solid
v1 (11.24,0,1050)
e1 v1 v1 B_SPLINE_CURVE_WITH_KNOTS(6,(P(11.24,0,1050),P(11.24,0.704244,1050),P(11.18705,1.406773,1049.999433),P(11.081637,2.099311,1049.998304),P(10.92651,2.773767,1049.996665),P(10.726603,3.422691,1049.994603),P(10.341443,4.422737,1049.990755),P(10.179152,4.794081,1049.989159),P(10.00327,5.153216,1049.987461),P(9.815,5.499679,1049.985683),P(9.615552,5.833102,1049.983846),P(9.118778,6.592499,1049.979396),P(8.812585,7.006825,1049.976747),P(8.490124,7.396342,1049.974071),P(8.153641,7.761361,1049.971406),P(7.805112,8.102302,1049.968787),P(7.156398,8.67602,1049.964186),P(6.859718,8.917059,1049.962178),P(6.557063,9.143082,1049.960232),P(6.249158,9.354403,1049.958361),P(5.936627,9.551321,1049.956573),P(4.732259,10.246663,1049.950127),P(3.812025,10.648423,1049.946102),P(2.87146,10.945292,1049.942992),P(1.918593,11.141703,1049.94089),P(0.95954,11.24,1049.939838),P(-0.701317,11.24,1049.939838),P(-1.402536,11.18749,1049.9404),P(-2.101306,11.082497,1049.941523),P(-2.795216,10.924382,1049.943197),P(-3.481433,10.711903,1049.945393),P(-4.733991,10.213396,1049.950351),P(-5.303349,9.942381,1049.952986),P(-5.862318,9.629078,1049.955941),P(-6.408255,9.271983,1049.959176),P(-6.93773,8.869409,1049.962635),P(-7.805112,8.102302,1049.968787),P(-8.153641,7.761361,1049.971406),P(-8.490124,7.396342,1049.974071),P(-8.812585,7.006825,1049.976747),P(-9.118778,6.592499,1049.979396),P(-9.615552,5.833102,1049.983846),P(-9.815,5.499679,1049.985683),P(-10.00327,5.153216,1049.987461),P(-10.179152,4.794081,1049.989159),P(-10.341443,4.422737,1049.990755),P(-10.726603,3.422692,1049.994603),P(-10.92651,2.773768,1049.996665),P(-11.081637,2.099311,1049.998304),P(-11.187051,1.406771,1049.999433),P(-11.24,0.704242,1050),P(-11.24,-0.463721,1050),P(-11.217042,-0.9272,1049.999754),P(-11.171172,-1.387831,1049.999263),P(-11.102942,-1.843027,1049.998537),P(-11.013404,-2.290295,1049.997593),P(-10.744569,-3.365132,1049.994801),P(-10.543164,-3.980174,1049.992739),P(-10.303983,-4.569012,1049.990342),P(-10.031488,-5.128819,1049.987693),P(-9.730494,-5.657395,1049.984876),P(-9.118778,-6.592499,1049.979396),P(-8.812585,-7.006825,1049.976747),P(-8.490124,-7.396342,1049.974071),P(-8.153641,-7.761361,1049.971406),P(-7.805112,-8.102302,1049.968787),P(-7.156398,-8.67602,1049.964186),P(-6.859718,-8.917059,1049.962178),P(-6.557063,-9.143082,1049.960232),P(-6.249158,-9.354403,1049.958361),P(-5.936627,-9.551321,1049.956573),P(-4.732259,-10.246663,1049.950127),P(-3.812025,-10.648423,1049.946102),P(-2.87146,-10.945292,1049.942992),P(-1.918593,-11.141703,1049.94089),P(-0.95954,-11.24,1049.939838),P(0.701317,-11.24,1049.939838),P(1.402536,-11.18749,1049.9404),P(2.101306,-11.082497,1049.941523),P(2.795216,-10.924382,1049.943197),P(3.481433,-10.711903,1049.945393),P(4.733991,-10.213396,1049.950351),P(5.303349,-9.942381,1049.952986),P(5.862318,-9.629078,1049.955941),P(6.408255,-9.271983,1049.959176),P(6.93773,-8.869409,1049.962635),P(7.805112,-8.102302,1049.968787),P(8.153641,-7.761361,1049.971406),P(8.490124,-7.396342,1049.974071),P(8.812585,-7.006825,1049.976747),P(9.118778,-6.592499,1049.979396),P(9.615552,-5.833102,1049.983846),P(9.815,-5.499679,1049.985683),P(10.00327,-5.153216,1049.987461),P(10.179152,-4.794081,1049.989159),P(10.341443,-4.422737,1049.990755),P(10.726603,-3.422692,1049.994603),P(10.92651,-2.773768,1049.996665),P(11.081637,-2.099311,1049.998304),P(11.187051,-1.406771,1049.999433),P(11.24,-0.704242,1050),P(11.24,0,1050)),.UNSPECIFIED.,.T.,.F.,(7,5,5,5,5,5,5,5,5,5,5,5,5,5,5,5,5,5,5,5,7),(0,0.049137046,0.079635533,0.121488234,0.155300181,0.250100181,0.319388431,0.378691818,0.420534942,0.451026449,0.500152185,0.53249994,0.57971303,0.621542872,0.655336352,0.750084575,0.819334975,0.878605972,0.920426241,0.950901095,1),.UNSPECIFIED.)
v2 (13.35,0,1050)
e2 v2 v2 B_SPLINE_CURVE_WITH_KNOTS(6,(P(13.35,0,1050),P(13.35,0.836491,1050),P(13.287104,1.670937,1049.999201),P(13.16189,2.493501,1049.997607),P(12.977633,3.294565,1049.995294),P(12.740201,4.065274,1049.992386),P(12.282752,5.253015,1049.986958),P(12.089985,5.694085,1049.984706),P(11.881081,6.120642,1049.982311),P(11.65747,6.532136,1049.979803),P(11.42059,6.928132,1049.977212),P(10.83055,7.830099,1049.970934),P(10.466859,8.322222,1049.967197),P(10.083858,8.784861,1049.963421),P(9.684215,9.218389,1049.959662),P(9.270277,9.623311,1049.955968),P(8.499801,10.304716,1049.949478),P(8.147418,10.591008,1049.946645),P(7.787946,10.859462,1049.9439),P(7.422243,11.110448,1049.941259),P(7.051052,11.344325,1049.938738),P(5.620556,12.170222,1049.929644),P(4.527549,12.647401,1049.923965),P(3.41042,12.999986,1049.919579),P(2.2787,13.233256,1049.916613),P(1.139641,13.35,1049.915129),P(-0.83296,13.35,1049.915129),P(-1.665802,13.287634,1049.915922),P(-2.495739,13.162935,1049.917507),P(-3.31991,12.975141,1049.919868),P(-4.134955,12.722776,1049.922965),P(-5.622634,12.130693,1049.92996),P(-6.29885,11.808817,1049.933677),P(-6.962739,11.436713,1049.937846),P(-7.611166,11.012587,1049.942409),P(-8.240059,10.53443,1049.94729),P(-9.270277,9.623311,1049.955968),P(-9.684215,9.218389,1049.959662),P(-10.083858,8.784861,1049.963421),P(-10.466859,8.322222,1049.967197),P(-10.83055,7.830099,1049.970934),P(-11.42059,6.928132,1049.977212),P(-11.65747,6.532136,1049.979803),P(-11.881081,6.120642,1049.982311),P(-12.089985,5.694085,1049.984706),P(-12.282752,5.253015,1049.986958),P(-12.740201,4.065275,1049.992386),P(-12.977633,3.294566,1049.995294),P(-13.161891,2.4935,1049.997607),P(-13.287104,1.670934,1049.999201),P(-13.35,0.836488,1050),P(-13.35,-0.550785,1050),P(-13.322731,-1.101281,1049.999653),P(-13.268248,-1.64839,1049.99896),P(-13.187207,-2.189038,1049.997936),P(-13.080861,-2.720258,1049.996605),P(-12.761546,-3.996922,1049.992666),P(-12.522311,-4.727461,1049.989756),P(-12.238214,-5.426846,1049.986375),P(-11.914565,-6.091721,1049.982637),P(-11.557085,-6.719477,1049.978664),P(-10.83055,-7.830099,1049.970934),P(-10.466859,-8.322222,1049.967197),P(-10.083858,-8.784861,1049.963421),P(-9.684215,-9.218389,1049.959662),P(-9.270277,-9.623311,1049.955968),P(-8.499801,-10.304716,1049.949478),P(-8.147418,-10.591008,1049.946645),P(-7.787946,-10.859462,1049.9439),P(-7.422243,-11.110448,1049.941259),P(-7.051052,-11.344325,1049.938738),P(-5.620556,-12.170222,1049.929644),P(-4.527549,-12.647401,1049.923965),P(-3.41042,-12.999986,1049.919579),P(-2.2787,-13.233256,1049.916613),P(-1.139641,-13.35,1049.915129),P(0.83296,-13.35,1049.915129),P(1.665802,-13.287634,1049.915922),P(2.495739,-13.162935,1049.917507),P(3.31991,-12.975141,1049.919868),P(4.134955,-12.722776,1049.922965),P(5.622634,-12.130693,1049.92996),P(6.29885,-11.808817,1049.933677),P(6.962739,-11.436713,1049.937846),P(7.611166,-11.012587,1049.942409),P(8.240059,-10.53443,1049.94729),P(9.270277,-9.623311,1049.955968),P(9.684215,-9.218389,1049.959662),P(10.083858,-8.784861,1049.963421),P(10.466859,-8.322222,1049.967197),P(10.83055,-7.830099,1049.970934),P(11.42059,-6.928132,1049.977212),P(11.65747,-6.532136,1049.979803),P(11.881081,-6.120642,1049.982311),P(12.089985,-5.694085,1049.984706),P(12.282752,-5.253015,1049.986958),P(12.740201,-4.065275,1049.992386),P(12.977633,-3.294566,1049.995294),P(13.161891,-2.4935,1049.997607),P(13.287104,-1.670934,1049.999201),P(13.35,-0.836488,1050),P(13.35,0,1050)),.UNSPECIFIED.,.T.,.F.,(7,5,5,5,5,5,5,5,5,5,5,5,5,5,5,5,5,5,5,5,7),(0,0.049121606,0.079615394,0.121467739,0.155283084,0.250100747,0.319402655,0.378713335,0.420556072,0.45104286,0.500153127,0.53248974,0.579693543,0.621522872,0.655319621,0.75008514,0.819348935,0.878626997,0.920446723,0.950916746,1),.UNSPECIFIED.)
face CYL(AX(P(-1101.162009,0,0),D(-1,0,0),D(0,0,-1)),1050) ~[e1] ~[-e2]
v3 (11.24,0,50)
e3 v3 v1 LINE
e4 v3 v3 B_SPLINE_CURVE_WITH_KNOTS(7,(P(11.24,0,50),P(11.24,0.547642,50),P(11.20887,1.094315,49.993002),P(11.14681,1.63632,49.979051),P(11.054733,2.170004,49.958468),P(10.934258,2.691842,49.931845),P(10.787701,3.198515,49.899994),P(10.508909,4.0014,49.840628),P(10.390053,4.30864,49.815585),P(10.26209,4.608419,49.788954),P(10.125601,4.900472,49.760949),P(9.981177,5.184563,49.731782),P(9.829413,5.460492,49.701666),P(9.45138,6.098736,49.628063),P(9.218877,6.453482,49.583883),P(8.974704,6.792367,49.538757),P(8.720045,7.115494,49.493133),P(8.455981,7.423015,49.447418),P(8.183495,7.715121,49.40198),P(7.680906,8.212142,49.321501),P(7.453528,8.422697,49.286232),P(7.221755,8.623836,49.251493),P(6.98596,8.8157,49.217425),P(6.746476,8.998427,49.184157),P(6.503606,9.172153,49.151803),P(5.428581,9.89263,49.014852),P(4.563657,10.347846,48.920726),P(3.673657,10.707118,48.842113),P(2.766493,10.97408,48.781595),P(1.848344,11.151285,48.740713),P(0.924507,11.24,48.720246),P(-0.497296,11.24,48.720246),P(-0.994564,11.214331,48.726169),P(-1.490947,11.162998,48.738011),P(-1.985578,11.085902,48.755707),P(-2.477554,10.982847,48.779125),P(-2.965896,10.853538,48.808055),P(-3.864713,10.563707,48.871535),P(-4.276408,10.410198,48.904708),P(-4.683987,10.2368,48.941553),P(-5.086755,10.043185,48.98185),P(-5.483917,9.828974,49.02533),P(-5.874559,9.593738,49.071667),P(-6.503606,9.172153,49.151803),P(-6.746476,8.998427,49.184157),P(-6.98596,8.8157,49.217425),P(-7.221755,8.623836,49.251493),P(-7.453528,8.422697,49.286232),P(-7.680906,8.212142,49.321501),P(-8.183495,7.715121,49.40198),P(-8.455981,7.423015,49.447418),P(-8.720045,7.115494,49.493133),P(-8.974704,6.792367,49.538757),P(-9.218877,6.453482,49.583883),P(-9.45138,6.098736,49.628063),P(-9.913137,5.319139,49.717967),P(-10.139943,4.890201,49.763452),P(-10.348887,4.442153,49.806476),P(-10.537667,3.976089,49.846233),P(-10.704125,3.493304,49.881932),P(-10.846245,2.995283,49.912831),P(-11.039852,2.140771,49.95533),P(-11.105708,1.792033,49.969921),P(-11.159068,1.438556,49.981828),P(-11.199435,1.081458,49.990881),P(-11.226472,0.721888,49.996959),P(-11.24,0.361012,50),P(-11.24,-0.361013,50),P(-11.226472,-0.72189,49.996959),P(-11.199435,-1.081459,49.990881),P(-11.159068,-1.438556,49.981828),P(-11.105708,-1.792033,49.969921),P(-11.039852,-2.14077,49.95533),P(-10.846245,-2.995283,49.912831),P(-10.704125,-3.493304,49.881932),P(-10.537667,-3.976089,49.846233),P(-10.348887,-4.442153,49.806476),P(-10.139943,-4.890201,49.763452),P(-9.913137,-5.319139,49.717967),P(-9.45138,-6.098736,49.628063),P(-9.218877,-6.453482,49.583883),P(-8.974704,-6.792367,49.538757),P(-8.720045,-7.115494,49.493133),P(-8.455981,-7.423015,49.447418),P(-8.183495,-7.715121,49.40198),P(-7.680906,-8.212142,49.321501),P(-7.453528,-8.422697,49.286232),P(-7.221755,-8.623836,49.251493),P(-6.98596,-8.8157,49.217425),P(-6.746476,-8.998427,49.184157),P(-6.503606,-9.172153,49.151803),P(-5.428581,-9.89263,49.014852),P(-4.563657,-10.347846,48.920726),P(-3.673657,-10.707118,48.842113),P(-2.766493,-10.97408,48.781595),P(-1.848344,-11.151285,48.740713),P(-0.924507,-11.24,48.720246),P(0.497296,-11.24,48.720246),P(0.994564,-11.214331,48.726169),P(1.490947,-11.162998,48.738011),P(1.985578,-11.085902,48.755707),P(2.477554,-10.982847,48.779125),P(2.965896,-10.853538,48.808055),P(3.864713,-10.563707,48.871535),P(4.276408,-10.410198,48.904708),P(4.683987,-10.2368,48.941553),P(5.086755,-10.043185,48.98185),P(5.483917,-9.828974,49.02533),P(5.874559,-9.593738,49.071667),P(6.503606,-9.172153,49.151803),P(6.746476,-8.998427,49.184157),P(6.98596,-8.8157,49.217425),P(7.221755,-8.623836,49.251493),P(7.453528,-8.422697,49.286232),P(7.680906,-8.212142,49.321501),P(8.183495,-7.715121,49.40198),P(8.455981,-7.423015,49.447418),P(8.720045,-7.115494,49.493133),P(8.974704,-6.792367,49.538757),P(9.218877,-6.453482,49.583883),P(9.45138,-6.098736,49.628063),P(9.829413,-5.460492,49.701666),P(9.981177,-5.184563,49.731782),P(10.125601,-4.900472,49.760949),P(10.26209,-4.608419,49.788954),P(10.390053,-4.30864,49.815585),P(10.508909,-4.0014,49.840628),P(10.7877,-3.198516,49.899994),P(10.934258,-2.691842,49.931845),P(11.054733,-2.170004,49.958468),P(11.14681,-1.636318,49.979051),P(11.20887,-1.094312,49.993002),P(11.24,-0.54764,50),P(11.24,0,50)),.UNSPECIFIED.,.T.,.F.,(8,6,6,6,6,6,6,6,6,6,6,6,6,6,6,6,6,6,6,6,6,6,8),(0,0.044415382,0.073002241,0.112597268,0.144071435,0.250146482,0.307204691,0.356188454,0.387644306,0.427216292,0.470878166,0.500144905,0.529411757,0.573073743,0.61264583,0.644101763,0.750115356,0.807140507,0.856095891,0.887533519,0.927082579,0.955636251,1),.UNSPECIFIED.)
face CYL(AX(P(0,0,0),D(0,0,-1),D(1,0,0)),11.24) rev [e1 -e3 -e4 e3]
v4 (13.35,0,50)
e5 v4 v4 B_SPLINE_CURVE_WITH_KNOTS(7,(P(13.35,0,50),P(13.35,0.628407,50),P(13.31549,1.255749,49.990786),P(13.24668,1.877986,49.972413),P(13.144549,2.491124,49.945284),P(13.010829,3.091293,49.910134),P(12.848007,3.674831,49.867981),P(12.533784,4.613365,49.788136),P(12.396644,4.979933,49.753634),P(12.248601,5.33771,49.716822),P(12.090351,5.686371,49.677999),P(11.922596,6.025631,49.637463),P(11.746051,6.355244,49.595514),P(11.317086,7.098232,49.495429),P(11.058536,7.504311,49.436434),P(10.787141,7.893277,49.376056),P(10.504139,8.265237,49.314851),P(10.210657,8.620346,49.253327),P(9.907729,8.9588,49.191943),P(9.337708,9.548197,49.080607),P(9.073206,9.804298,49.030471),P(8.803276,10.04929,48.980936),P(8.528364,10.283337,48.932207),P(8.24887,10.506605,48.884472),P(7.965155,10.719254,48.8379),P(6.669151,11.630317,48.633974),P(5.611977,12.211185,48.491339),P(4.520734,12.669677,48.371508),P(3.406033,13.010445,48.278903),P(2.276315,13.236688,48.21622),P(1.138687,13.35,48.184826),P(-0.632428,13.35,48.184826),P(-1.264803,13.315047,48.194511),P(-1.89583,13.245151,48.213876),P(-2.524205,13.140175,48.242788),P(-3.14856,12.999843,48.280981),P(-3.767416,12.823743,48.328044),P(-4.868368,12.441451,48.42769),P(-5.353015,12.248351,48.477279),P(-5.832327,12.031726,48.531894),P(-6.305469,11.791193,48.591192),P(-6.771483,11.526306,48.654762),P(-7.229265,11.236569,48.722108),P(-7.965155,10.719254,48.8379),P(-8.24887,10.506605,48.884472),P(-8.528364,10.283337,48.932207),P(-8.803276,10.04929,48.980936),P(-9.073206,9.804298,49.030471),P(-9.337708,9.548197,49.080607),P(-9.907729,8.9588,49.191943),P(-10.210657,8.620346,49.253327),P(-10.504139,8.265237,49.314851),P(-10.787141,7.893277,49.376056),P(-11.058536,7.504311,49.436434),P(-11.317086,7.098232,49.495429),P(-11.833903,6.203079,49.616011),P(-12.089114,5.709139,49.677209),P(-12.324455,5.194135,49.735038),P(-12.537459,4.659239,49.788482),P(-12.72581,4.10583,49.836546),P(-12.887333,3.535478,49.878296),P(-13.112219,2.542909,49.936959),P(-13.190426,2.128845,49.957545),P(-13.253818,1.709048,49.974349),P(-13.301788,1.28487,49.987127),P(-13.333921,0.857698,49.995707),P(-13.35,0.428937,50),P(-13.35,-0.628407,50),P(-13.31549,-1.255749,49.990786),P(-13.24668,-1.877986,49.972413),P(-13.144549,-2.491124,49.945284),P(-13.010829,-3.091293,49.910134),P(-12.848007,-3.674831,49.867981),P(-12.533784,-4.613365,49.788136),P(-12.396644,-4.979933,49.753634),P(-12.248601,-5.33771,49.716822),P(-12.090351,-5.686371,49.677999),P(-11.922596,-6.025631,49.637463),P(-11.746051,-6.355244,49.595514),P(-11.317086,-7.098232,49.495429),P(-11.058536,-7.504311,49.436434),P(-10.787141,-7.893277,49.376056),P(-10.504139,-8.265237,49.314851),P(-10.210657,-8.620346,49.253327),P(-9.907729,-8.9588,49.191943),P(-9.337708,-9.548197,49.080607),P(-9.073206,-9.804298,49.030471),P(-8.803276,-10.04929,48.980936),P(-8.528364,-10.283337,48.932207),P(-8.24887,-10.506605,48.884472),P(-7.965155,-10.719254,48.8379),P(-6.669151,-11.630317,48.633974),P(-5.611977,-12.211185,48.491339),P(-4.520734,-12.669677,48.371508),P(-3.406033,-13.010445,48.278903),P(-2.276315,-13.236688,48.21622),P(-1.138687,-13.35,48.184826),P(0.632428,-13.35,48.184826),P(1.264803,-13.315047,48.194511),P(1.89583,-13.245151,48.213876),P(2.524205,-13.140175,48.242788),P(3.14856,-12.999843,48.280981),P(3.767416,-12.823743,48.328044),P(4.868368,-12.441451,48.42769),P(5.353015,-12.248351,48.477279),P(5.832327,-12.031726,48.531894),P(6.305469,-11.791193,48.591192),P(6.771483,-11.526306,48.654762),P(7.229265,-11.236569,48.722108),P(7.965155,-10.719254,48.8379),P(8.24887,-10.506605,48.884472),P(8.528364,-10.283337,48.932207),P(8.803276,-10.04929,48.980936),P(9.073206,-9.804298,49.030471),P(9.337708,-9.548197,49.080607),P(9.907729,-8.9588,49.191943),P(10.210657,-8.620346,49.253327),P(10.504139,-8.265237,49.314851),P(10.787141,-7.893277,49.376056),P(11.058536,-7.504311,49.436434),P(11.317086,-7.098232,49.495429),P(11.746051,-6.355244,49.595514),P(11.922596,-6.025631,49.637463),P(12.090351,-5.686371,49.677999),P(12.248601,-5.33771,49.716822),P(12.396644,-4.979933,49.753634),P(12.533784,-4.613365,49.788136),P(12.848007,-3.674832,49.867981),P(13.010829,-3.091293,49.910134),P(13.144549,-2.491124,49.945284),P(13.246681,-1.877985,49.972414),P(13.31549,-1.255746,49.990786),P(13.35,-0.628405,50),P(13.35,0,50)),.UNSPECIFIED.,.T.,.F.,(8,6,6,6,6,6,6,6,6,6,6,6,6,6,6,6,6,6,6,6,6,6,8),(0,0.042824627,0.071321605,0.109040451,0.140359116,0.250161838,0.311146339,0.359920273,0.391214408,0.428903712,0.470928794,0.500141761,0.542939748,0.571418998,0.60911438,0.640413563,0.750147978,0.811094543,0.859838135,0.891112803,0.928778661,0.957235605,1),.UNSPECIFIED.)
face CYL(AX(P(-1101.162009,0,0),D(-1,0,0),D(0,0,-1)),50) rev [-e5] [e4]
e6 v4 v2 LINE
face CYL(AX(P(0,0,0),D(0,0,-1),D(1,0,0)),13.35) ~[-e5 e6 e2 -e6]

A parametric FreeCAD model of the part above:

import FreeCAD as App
import Part
import Sketcher
from FreeCAD import Vector

doc = App.newDocument("Part")
body = doc.addObject("PartDesign::Body", "Body")

# Sketch on XY plane
sketch1 = body.newObject("Sketcher::SketchObject", "Sketch")
sketch1.AttachmentSupport = (doc.getObject("XY_Plane"), [""])
sketch1.MapMode = "FlatFace"
sketch1.addGeometry([
    Part.Circle(Vector(0, 0, 0), Vector(0, 0, 1), 13),
    Part.Circle(Vector(0, 0, 0), Vector(0, 0, 1), 11),
], False)
sketch1.addConstraint([
    Sketcher.Constraint("Coincident", 0, 3, -1, 1),
    Sketcher.Constraint("Coincident", 1, 3, -1, 1),
    Sketcher.Constraint("Diameter", 0, 26.7),
    Sketcher.Constraint("Diameter", 1, 22.48),
])
pad1 = body.newObject("PartDesign::Pad", "Pad")
pad1.Profile = sketch1
pad1.Length = 1100

# Sketch on YZ plane
sketch2 = body.newObject("Sketcher::SketchObject", "Sketch001")
sketch2.AttachmentSupport = (doc.getObject("YZ_Plane"), [""])
sketch2.MapMode = "FlatFace"
sketch2.addGeometry(Part.Circle(Vector(0, 0, 0), Vector(0, 0, 1), 50), False)
sketch2.addConstraint([
    Sketcher.Constraint("Coincident", 0, 3, -1, 1),
    Sketcher.Constraint("Diameter", 0, 100.0),
])
pocket1 = body.newObject("PartDesign::Pocket", "Pocket")
pocket1.Profile = sketch2
pocket1.Type = "ThroughAll"
pocket1.Midplane = True

# Sketch on YZ plane
sketch3 = body.newObject("Sketcher::SketchObject", "Sketch002")
sketch3.AttachmentSupport = (doc.getObject("YZ_Plane"), [""])
sketch3.MapMode = "FlatFace"
sketch3.addGeometry([
    Part.Circle(Vector(0, 0, 0), Vector(0, 0, 1), 2231),
    Part.Circle(Vector(0, 0, 0), Vector(0, 0, 1), 1050),
], False)
sketch3.addConstraint([
    Sketcher.Constraint("Coincident", 0, 3, -1, 1),
    Sketcher.Constraint("Coincident", 1, 3, -1, 1),
    Sketcher.Constraint("Diameter", 1, 2100.0),
    Sketcher.Constraint("Diameter", 0, 4462.72496),
])
pocket2 = body.newObject("PartDesign::Pocket", "Pocket001")
pocket2.Profile = sketch3
pocket2.Type = "ThroughAll"
pocket2.Midplane = True

doc.recompute()
